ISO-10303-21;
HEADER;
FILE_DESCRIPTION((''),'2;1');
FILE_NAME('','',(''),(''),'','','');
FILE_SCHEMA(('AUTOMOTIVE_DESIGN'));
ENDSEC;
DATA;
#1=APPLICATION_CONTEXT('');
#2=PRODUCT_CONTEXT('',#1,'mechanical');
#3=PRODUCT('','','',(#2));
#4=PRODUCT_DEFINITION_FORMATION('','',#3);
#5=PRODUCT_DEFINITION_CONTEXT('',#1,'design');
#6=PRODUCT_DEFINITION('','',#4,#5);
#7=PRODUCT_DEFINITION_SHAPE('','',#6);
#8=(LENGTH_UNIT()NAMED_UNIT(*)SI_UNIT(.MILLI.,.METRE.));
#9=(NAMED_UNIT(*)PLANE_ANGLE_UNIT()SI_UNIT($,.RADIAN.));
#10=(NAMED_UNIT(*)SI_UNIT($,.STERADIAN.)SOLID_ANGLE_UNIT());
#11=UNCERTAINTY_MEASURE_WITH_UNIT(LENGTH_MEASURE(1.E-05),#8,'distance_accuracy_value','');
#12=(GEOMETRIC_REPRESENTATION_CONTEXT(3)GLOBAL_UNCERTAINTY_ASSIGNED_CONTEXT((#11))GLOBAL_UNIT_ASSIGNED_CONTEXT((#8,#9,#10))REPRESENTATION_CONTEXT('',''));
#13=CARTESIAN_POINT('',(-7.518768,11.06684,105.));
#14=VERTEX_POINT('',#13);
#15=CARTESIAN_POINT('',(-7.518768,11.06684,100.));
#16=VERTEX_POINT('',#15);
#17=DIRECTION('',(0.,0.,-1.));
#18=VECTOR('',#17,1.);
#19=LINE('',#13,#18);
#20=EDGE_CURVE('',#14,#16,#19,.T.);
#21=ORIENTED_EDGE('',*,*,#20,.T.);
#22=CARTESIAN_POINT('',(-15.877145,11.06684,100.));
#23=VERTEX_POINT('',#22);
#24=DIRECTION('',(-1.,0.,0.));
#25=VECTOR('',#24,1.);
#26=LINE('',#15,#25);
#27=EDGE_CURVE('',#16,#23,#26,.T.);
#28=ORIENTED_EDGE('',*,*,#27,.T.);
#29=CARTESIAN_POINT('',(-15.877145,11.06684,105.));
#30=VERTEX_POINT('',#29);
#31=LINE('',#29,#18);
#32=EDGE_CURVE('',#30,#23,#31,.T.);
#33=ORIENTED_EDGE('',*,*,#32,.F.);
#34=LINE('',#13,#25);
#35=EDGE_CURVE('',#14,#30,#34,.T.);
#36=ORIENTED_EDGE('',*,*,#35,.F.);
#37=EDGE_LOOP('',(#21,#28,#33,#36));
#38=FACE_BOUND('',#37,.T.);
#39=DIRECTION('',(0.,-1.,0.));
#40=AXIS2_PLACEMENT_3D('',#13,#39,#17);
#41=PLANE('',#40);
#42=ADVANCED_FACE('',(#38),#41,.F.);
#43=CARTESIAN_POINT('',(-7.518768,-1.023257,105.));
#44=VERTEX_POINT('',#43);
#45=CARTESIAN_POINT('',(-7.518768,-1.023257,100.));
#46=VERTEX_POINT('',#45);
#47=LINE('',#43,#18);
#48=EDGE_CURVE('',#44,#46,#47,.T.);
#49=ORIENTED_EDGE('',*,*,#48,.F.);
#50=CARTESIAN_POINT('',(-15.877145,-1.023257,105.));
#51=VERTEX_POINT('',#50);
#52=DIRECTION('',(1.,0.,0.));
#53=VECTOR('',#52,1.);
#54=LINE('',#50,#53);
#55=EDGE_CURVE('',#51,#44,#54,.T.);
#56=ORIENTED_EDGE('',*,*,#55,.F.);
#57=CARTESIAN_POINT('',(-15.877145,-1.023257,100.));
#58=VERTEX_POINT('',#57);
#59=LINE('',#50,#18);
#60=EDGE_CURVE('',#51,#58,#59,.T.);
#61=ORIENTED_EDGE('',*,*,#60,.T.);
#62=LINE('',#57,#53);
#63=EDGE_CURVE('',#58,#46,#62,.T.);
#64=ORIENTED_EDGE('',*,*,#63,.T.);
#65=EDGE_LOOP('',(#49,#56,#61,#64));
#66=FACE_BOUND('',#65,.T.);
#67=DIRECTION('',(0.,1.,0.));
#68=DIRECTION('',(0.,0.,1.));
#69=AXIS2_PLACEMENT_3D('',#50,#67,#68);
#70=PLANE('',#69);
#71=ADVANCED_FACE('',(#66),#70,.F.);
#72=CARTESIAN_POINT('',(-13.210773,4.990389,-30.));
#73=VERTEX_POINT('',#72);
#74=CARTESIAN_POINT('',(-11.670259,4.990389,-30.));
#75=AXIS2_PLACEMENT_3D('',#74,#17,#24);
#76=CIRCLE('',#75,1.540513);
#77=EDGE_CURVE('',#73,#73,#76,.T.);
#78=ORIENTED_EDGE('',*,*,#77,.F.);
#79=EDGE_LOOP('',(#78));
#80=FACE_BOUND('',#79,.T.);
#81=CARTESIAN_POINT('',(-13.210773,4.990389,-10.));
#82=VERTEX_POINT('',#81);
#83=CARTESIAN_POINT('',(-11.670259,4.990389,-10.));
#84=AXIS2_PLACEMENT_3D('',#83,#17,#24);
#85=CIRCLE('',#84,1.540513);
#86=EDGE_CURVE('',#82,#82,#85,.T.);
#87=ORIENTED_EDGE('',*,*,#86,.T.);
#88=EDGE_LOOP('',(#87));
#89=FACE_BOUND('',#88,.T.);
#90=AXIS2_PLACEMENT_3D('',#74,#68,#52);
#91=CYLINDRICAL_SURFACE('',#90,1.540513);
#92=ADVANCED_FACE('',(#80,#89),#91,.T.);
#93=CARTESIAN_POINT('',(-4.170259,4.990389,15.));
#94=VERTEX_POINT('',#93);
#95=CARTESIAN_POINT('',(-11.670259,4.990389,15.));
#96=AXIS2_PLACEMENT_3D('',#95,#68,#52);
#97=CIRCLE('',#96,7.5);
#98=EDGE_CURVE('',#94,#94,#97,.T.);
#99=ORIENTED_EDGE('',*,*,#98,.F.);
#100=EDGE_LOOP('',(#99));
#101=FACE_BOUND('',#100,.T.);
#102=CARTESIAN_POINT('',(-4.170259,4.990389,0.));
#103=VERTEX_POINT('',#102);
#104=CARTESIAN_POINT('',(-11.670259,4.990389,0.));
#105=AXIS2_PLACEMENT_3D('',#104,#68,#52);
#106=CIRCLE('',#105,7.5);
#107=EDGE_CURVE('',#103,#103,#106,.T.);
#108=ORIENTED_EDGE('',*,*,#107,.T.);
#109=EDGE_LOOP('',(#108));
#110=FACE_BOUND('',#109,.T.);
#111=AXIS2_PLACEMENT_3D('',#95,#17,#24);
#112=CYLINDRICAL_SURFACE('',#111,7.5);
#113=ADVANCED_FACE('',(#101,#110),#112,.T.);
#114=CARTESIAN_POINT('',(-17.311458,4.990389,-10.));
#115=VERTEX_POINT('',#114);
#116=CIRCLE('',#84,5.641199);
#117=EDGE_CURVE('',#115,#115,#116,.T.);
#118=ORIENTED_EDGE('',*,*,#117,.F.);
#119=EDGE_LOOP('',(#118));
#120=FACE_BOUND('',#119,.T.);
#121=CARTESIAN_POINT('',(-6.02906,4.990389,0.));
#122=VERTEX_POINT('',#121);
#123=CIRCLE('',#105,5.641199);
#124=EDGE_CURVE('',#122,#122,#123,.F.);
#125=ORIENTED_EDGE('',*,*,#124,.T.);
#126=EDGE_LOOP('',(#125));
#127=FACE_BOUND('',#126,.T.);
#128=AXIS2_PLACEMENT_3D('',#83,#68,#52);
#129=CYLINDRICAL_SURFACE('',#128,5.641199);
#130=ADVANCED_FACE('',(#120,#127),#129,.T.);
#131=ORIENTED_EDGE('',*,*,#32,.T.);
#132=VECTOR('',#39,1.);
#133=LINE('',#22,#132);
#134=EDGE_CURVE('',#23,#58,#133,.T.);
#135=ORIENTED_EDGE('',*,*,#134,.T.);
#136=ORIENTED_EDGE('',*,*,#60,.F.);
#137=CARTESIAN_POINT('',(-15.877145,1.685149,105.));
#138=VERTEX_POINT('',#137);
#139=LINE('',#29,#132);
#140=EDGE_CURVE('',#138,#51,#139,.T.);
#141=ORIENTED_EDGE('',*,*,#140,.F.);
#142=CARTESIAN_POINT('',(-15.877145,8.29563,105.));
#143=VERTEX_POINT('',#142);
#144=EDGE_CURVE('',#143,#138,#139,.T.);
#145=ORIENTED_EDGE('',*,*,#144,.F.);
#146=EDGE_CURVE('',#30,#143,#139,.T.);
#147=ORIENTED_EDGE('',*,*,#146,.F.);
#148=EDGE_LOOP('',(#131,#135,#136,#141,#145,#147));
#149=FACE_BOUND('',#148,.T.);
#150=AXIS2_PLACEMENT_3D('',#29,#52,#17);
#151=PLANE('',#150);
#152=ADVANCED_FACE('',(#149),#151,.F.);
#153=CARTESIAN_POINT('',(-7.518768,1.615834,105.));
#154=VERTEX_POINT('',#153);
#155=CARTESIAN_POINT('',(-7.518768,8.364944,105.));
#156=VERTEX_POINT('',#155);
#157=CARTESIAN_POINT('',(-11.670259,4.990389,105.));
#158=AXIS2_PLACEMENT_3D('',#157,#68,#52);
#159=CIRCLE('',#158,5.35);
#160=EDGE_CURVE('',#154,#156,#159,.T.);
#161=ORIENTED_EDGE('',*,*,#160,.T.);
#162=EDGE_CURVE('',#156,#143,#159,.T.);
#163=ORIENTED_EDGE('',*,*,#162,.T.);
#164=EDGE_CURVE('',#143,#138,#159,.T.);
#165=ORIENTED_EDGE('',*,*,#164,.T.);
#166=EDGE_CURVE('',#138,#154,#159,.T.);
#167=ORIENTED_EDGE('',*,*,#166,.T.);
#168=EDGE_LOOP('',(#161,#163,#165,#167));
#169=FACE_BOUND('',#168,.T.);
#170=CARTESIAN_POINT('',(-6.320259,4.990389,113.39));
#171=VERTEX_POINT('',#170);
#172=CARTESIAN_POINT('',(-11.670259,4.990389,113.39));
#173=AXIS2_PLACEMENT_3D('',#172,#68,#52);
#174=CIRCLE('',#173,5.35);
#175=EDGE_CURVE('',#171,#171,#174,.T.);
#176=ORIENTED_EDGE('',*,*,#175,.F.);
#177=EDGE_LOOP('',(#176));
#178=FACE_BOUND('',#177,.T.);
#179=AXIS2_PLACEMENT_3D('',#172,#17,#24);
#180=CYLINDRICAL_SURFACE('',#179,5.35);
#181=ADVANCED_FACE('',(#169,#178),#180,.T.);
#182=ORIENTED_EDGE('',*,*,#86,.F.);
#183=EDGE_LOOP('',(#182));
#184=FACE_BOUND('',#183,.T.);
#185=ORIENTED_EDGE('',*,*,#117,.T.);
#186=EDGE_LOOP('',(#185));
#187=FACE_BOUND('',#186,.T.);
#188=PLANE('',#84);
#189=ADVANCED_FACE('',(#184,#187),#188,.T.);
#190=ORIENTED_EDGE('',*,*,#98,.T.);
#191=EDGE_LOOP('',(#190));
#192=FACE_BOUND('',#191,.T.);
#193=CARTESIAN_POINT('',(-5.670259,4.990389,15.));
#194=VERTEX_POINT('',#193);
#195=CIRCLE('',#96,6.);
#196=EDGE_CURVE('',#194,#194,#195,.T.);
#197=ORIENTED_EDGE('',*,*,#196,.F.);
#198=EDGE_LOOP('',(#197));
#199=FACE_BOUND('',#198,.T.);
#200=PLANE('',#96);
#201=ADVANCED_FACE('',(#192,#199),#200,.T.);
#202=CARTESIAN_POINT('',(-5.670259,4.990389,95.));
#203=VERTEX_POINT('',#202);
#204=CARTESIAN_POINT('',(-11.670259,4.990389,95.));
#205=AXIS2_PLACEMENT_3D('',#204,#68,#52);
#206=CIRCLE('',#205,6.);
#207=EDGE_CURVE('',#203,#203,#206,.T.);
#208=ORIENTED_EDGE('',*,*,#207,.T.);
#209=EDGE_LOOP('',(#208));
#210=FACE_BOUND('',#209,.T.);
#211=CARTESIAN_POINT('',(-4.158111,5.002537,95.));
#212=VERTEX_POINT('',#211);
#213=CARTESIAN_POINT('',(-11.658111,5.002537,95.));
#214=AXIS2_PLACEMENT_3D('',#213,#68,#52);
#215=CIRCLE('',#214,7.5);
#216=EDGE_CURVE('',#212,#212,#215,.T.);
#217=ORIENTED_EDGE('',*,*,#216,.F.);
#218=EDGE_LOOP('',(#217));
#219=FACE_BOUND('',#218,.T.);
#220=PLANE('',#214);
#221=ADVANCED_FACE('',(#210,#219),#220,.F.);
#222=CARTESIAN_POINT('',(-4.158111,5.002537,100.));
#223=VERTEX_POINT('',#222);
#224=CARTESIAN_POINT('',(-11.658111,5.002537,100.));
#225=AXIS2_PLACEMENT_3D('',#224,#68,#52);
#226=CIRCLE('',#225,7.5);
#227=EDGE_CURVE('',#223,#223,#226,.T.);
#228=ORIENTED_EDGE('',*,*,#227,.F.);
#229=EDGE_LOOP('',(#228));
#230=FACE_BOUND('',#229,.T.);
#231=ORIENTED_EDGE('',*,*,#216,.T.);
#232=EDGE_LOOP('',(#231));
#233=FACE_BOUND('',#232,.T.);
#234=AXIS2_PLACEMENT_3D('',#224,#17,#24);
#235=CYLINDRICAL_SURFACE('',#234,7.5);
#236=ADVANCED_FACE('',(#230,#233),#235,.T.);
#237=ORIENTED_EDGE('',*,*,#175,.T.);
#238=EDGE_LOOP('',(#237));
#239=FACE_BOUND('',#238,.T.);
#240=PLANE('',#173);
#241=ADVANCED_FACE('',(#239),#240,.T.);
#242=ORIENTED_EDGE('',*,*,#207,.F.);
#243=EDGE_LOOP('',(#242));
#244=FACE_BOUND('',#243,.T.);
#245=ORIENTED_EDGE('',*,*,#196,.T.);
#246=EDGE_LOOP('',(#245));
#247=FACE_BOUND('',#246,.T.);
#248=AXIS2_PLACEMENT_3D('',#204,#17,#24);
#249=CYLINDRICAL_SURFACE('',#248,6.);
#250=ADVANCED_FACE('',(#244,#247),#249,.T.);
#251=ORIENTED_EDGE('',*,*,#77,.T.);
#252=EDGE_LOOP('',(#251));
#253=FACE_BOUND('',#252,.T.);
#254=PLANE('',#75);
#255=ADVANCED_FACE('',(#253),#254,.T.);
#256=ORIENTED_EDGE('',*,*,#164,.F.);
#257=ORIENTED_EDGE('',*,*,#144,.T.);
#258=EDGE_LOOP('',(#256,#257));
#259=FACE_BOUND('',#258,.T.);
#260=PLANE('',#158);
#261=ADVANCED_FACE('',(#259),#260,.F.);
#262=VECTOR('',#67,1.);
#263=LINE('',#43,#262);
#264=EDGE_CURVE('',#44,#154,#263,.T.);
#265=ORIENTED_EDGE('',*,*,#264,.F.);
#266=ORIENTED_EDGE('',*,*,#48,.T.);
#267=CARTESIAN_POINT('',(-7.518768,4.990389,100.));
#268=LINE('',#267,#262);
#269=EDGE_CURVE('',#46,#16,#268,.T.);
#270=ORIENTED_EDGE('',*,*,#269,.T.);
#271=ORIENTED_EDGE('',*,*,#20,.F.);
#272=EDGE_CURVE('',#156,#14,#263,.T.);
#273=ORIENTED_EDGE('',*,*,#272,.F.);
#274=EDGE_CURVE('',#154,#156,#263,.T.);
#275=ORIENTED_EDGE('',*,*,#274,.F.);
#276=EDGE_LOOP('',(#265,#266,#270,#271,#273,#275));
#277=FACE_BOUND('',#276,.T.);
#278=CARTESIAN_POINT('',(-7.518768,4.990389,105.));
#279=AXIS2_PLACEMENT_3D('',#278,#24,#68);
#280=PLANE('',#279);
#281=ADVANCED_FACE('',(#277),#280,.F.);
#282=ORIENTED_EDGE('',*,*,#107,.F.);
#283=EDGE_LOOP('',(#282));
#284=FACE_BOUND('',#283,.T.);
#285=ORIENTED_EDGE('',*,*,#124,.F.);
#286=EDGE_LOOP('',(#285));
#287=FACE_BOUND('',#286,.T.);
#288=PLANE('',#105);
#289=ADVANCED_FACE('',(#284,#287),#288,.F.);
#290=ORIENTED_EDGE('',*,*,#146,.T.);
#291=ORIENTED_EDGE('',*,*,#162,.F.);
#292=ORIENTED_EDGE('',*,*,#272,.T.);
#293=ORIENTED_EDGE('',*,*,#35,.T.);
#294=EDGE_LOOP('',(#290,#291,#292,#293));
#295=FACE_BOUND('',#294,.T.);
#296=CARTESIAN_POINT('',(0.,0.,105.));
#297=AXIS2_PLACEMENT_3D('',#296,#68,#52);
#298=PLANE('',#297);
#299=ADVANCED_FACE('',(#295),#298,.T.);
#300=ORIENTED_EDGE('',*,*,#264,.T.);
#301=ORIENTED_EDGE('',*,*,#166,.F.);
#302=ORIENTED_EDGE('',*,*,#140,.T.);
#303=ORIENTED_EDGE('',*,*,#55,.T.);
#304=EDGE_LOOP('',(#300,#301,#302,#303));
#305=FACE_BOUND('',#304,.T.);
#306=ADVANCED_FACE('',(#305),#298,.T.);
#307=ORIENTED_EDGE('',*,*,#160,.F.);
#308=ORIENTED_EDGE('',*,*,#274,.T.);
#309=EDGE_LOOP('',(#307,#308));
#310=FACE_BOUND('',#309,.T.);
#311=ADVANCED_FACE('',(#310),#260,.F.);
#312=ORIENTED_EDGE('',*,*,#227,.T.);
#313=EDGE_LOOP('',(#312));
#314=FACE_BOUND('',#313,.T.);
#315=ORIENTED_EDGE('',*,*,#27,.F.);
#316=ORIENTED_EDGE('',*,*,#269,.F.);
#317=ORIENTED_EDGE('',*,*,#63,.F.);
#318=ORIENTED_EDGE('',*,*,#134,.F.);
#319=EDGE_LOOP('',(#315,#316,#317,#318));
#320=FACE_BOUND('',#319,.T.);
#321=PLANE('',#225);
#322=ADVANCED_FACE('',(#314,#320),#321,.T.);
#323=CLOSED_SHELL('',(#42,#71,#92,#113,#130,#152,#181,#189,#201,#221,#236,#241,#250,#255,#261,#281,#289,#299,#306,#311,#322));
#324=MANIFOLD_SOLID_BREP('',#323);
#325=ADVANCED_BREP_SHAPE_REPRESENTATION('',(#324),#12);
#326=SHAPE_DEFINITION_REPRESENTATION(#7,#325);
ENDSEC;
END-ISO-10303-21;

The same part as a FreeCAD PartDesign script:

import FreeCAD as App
import Part
import Sketcher

V = App.Vector
Q = App.Units.Quantity

doc = App.newDocument("Part")
body = doc.addObject("PartDesign::Body", "Body")

# Sketch on XY plane
sketch1 = doc.addObject("Sketcher::SketchObject", "Sketch")
body.addObject(sketch1)
sketch1.AttachmentSupport = (doc.XY_Plane, [""])
sketch1.MapMode = "FlatFace"
sketch1.addGeometry(Part.Circle(V(-11.670259, 4.990389, 0), V(0, 0, 1), 7.5), False)
sketch1.addConstraint([
    Sketcher.Constraint("Diameter", 0, Q("15 mm")),
    Sketcher.Constraint("DistanceX", 0, 3, -1, 1, Q("11.670259 mm")),
    Sketcher.Constraint("DistanceY", -1, 1, 0, 3, Q("4.990389 mm")),
])
pad1 = doc.addObject("PartDesign::Pad", "Pad")
body.addObject(pad1)
pad1.Profile = sketch1
pad1.Length = 15

# Sketch on XY plane
sketch2 = doc.addObject("Sketcher::SketchObject", "Sketch001")
body.addObject(sketch2)
sketch2.AttachmentSupport = (doc.XY_Plane, [""])
sketch2.MapMode = "FlatFace"
sketch2.AttachmentOffset = App.Placement(V(0, 0, 15), App.Rotation())
sketch2.addGeometry(Part.Circle(V(-11.670259, 4.990389, 0), V(0, 0, 1), 6), False)
sketch2.addConstraint([
    Sketcher.Constraint("Diameter", 0, Q("12 mm")),
    Sketcher.Constraint("DistanceX", 0, 3, -1, 1, Q("11.670259 mm")),
    Sketcher.Constraint("DistanceY", -1, 1, 0, 3, Q("4.990389 mm")),
])
pad2 = doc.addObject("PartDesign::Pad", "Pad001")
body.addObject(pad2)
pad2.Profile = sketch2
pad2.Length = 80

# Sketch on XY plane
sketch3 = doc.addObject("Sketcher::SketchObject", "Sketch002")
body.addObject(sketch3)
sketch3.AttachmentSupport = (doc.XY_Plane, [""])
sketch3.MapMode = "FlatFace"
sketch3.AttachmentOffset = App.Placement(V(0, 0, 95), App.Rotation())
sketch3.addGeometry(Part.Circle(V(-11.658111, 5.002537, 0), V(0, 0, 1), 7.5), False)
sketch3.addConstraint([
    Sketcher.Constraint("Diameter", 0, Q("15 mm")),
    Sketcher.Constraint("DistanceX", 0, 3, -1, 1, Q("11.658111 mm")),
    Sketcher.Constraint("DistanceY", -1, 1, 0, 3, Q("5.002537 mm")),
])
pad3 = doc.addObject("PartDesign::Pad", "Pad002")
body.addObject(pad3)
pad3.Profile = sketch3
pad3.Length = 5

# Sketch on XY plane
sketch4 = doc.addObject("Sketcher::SketchObject", "Sketch003")
body.addObject(sketch4)
sketch4.AttachmentSupport = (doc.XY_Plane, [""])
sketch4.MapMode = "FlatFace"
sketch4.AttachmentOffset = App.Placement(V(0, 0, 100), App.Rotation())
sketch4.addGeometry([
    Part.LineSegment(V(-7.518768, 11.06684, 0), V(-15.877145, 11.06684, 0)),
    Part.LineSegment(V(-15.877145, 11.06684, 0), V(-15.877145, -1.023257, 0)),
    Part.LineSegment(V(-15.877145, -1.023257, 0), V(-7.518768, -1.023257, 0)),
    Part.LineSegment(V(-7.518768, -1.023257, 0), V(-7.518768, 11.06684, 0)),
], False)
sketch4.addConstraint([
    Sketcher.Constraint("Coincident", 0, 2, 1, 1),
    Sketcher.Constraint("Coincident", 1, 2, 2, 1),
    Sketcher.Constraint("Coincident", 2, 2, 3, 1),
    Sketcher.Constraint("Coincident", 3, 2, 0, 1),
    Sketcher.Constraint("Horizontal", 0),
    Sketcher.Constraint("Vertical", 1),
    Sketcher.Constraint("Horizontal", 2),
    Sketcher.Constraint("Vertical", 3),
    Sketcher.Constraint("DistanceX", 0, 2, 0, 1, Q("8.358377 mm")),
    Sketcher.Constraint("DistanceY", 1, 2, 1, 1, Q("12.090096 mm")),
    Sketcher.Constraint("DistanceY", -1, 1, 0, 2, Q("11.06684 mm")),
    Sketcher.Constraint("DistanceX", 2, 2, -1, 1, Q("7.518768 mm")),
])
pad4 = doc.addObject("PartDesign::Pad", "Pad003")
body.addObject(pad4)
pad4.Profile = sketch4
pad4.Length = 5

# Sketch on XY plane
sketch5 = doc.addObject("Sketcher::SketchObject", "Sketch004")
body.addObject(sketch5)
sketch5.AttachmentSupport = (doc.XY_Plane, [""])
sketch5.MapMode = "FlatFace"
sketch5.AttachmentOffset = App.Placement(V(0, 0, 105), App.Rotation())
sketch5.addGeometry(Part.Circle(V(-11.670259, 4.990389, 0), V(0, 0, 1), 5.35), False)
sketch5.addConstraint([
    Sketcher.Constraint("Diameter", 0, Q("10.7 mm")),
    Sketcher.Constraint("DistanceX", 0, 3, -1, 1, Q("11.670259 mm")),
    Sketcher.Constraint("DistanceY", -1, 1, 0, 3, Q("4.990389 mm")),
])
pad5 = doc.addObject("PartDesign::Pad", "Pad004")
body.addObject(pad5)
pad5.Profile = sketch5
pad5.Length = 8.39

# Sketch on XY plane
sketch6 = doc.addObject("Sketcher::SketchObject", "Sketch005")
body.addObject(sketch6)
sketch6.AttachmentSupport = (doc.XY_Plane, [""])
sketch6.MapMode = "FlatFace"
sketch6.addGeometry(Part.Circle(V(-11.670259, 4.990389, 0), V(0, 0, 1), 5.641199), False)
sketch6.addConstraint([
    Sketcher.Constraint("Diameter", 0, Q("11.282398 mm")),
    Sketcher.Constraint("DistanceX", 0, 3, -1, 1, Q("11.670259 mm")),
    Sketcher.Constraint("DistanceY", -1, 1, 0, 3, Q("4.990389 mm")),
])
pad6 = doc.addObject("PartDesign::Pad", "Pad005")
body.addObject(pad6)
pad6.Profile = sketch6
pad6.Length = 10
pad6.Reversed = True

# Sketch on XY plane
sketch7 = doc.addObject("Sketcher::SketchObject", "Sketch006")
body.addObject(sketch7)
sketch7.AttachmentSupport = (doc.XY_Plane, [""])
sketch7.MapMode = "FlatFace"
sketch7.AttachmentOffset = App.Placement(V(0, 0, -10), App.Rotation())
sketch7.addGeometry(Part.Circle(V(-11.670259, 4.990389, 0), V(0, 0, 1), 1.540513), False)
sketch7.addConstraint([
    Sketcher.Constraint("Diameter", 0, Q("3.081027 mm")),
    Sketcher.Constraint("DistanceX", 0, 3, -1, 1, Q("11.670259 mm")),
    Sketcher.Constraint("DistanceY", -1, 1, 0, 3, Q("4.990389 mm")),
])
pad7 = doc.addObject("PartDesign::Pad", "Pad006")
body.addObject(pad7)
pad7.Profile = sketch7
pad7.Length = 20
pad7.Reversed = True

doc.recompute()
